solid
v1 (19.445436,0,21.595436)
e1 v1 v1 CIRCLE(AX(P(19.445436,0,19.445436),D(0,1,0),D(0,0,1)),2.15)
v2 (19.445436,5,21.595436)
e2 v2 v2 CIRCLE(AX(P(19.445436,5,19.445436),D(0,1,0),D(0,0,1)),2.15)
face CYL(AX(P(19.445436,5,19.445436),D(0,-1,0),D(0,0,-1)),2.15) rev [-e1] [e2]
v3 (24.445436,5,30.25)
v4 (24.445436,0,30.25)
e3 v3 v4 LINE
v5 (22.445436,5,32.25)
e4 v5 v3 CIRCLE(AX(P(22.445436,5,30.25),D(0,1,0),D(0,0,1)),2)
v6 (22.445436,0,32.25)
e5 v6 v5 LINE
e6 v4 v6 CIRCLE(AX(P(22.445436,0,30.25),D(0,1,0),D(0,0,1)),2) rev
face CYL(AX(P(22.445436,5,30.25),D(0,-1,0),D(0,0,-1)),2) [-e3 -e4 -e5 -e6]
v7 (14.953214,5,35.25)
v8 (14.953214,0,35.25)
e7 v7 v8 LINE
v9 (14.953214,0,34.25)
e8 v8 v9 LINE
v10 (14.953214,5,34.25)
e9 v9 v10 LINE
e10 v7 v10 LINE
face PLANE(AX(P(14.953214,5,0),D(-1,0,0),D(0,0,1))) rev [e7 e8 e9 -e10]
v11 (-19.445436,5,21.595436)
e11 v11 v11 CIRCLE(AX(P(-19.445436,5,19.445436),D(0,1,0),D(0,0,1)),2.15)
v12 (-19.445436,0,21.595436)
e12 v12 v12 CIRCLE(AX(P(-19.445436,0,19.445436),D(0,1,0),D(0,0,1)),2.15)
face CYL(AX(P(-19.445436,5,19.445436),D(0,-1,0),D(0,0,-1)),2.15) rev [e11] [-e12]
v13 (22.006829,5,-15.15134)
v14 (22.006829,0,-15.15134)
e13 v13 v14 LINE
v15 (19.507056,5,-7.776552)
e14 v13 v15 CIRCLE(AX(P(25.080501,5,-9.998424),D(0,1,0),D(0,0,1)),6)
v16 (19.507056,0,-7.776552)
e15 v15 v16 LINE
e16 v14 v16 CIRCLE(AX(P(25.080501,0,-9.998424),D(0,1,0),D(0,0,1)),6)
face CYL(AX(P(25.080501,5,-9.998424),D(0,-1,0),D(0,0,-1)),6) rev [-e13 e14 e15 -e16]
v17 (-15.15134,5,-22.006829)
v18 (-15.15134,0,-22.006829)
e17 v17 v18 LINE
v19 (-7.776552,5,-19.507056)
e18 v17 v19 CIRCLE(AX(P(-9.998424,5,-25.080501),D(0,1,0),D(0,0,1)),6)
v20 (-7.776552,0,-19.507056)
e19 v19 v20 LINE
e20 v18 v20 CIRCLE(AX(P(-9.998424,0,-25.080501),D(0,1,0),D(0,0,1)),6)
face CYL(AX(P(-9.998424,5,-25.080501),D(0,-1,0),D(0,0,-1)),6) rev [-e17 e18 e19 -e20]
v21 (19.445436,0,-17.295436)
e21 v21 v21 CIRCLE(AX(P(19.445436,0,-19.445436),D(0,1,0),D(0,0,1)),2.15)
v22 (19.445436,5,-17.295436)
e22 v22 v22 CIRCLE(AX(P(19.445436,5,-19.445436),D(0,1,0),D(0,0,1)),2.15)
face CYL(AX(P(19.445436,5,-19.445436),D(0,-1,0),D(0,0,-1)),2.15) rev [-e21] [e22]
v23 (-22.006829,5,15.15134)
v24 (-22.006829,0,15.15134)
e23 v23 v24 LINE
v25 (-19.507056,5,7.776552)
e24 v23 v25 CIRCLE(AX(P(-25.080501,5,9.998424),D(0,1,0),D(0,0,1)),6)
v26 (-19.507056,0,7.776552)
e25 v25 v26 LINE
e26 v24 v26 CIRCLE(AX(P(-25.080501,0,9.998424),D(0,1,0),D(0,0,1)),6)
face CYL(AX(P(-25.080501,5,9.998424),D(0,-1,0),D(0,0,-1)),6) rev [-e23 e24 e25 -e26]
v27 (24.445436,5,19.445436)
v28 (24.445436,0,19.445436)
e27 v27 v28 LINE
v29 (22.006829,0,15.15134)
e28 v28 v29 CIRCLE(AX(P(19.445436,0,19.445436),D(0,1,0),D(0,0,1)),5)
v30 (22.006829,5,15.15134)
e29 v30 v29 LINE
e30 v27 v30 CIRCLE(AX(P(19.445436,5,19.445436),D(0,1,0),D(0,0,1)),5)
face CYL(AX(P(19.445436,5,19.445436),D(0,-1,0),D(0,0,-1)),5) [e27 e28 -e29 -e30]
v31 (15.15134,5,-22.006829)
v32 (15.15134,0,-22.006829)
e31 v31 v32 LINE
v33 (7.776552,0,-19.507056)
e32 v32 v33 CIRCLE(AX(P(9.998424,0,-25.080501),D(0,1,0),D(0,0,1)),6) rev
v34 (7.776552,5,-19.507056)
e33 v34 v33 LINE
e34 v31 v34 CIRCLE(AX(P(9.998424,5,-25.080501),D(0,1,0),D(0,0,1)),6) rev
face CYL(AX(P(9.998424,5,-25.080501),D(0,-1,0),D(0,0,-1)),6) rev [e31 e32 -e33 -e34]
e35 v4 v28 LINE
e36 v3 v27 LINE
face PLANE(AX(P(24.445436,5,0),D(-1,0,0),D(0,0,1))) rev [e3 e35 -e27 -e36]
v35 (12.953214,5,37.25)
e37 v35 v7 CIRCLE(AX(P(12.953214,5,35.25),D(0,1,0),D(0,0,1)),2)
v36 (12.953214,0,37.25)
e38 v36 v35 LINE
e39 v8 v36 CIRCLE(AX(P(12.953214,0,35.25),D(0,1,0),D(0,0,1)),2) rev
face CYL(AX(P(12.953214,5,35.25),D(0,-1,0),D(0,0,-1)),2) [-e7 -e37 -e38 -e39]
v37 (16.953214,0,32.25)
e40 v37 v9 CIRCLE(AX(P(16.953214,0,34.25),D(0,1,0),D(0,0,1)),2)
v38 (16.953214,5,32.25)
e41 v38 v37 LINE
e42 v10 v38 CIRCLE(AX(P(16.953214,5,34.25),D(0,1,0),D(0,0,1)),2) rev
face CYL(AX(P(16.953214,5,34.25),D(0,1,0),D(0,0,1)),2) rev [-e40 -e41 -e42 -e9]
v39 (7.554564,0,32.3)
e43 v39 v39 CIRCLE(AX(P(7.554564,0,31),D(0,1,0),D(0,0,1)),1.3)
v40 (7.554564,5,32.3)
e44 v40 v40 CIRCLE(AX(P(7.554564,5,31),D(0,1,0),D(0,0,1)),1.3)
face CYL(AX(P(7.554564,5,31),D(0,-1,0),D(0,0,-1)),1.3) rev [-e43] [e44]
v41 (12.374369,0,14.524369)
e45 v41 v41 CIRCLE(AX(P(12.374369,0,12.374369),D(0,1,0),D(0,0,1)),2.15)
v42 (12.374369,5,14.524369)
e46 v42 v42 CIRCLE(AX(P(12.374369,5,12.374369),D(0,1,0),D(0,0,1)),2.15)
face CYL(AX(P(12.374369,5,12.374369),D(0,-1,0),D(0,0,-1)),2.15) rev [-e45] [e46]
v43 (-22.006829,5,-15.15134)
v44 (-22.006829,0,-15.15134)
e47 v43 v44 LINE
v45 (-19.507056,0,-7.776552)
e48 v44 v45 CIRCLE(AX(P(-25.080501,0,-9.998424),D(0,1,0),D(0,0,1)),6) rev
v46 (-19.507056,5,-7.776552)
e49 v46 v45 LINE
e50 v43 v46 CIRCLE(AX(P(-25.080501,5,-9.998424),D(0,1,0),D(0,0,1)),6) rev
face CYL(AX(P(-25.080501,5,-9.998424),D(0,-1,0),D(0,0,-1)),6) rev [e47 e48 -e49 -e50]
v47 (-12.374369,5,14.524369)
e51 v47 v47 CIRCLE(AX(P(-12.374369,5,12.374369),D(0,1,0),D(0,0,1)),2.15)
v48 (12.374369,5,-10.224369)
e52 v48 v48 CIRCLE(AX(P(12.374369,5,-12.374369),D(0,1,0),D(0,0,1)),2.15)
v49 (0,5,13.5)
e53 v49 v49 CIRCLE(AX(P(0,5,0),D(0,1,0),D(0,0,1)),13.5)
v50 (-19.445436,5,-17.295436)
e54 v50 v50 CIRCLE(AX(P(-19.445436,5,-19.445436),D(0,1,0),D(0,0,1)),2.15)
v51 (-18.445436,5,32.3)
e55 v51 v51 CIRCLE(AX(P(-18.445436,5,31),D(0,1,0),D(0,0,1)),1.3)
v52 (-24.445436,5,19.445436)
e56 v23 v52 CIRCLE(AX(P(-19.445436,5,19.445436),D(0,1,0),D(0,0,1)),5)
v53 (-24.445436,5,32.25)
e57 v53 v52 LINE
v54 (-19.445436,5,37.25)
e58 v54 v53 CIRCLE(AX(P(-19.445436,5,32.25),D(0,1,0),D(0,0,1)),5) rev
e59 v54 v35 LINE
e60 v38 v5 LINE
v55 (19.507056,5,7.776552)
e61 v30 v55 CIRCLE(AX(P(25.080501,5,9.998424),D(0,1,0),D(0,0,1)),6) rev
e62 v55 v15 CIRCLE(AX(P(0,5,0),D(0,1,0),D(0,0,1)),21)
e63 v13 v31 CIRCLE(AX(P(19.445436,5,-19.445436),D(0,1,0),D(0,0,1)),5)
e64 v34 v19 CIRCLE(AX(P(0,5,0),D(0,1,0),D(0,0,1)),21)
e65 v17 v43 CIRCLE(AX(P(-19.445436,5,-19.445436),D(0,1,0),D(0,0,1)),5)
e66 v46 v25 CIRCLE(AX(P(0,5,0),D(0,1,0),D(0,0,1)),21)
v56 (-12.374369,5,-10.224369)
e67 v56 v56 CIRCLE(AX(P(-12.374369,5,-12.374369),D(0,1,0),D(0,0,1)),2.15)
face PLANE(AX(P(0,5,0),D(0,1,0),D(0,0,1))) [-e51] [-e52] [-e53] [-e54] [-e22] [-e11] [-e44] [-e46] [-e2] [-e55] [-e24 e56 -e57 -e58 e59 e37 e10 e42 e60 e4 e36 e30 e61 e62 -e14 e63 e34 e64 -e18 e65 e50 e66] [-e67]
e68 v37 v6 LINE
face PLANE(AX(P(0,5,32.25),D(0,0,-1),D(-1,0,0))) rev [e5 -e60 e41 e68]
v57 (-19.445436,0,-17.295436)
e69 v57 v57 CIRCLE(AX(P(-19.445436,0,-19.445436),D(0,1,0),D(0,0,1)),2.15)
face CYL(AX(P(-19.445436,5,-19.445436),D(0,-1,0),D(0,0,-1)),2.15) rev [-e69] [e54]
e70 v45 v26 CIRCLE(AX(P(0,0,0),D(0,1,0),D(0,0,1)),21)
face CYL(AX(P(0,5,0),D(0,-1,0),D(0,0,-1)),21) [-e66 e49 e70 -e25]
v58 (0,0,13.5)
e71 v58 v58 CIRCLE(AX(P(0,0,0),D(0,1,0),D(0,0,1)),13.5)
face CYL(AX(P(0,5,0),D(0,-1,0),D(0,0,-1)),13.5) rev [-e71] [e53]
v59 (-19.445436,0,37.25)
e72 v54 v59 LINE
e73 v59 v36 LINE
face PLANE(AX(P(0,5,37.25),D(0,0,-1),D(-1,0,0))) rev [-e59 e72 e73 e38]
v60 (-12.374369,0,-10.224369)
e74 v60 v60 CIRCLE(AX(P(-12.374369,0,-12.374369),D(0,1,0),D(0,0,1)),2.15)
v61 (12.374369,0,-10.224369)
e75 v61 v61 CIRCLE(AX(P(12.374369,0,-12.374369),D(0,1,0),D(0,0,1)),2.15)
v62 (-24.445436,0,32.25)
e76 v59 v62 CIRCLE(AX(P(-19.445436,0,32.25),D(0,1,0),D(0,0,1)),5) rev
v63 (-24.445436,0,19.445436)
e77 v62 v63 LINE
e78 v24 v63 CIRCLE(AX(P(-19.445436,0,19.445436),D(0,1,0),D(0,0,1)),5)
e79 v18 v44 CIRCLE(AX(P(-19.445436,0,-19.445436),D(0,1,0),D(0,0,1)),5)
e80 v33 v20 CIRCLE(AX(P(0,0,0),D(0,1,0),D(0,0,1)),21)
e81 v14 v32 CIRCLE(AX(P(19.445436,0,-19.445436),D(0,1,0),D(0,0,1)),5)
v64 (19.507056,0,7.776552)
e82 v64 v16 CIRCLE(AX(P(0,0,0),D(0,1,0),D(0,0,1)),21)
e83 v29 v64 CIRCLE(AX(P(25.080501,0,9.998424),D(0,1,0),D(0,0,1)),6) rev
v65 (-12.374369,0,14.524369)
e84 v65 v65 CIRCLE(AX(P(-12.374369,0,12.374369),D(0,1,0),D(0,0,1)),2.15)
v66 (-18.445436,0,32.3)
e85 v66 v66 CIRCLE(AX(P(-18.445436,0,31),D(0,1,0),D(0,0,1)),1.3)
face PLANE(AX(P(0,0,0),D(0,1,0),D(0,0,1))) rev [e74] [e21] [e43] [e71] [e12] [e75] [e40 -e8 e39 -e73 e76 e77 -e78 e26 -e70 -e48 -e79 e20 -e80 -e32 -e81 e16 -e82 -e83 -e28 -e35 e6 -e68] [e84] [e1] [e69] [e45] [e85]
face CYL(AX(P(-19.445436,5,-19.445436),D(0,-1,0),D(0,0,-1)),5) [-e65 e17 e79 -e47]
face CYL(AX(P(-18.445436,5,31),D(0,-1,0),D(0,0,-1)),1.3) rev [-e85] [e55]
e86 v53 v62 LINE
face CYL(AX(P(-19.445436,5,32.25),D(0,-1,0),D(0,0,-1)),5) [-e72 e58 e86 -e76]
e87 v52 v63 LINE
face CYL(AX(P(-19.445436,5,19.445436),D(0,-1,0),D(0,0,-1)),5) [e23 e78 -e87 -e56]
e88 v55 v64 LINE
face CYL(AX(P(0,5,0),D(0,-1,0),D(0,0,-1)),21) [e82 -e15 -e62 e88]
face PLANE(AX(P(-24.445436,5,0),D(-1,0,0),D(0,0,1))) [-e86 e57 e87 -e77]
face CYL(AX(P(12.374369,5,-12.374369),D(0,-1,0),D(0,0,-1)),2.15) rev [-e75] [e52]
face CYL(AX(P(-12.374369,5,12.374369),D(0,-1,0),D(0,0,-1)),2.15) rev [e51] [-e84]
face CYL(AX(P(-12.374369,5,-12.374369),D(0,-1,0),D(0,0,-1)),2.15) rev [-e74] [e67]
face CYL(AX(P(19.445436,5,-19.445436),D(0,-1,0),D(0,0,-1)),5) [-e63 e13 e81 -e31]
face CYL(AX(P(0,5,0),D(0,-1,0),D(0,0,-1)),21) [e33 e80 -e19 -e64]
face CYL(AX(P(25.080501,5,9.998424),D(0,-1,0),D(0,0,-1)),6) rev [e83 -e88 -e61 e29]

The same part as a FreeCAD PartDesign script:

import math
import FreeCAD as App
import Part
import Sketcher

V = App.Vector


def edges_at(feature, points):
    """Names of the edges that pass closest to the given points."""
    edges = feature.Shape.Edges
    near = lambda p: min(range(len(edges)), key=lambda i: edges[i].distToShape(Part.Vertex(*p))[0])
    return sorted({f"Edge{near(p) + 1}" for p in points})

doc = App.newDocument("Part")
params = doc.addObject("Spreadsheet::Sheet", "Params")
for row, (alias, value) in enumerate([
    ("sketch1_diameter", "27 mm"),
    ("sketch1_radius", "5 mm"),
    ("sketch1_radius2", "6 mm"),
    ("sketch1_radius3", "21 mm"),
    ("sketch1_diameter2", "4.3 mm"),
    ("pad1_length", "5 mm"),
    ("fillet_radius", "2 mm"),
], start=1):
    params.set(f"A{row}", alias)
    params.set(f"B{row}", "=" + value)
    params.setAlias(f"B{row}", alias)

body = doc.addObject("PartDesign::Body", "Body")

# Sketch on XZ plane
sketch1 = body.newObject("Sketcher::SketchObject", "Sketch")
sketch1.AttachmentSupport = (doc.getObject("XZ_Plane"), [""])
sketch1.MapMode = "FlatFace"
sketch1.addGeometry([
    Part.LineSegment(V(-24.4, 19.4, 0), V(-24.4, 32.2, 0)),  # 0
    Part.ArcOfCircle(Part.Circle(V(-19.4, 32.2, 0), V(0, 0, 1), 5), math.radians(90), math.radians(180)),  # 1
    Part.LineSegment(V(-19.4, 37.2, 0), V(15, 37.2, 0)),  # 2
    Part.LineSegment(V(15, 37.2, 0), V(15, 32.2, 0)),  # 3
    Part.LineSegment(V(15, 32.2, 0), V(24.4, 32.2, 0)),  # 4
    Part.LineSegment(V(24.4, 32.2, 0), V(24.4, 19.4, 0)),  # 5
    Part.ArcOfCircle(Part.Circle(V(19.4, 19.4, 0), V(0, 0, 1), 5), math.radians(-59), math.radians(0)),  # 6
    Part.ArcOfCircle(Part.Circle(V(25.1, 10, 0), V(0, 0, 1), 6), math.radians(121), math.radians(202)),  # 7
    Part.ArcOfCircle(Part.Circle(V(0, 0, 0), V(0, 0, 1), 21), math.radians(-22), math.radians(22)),  # 8
    Part.ArcOfCircle(Part.Circle(V(25.1, -10, 0), V(0, 0, 1), 6), math.radians(158), math.radians(239)),  # 9
    Part.ArcOfCircle(Part.Circle(V(19.4, -19.4, 0), V(0, 0, 1), 5), math.radians(-149), math.radians(59)),  # 10
    Part.ArcOfCircle(Part.Circle(V(10, -25.1, 0), V(0, 0, 1), 6), math.radians(31), math.radians(112)),  # 11
    Part.ArcOfCircle(Part.Circle(V(0, 0, 0), V(0, 0, 1), 21), math.radians(-112), math.radians(-68)),  # 12
    Part.ArcOfCircle(Part.Circle(V(-10, -25.1, 0), V(0, 0, 1), 6), math.radians(68), math.radians(149)),  # 13
    Part.ArcOfCircle(Part.Circle(V(-19.4, -19.4, 0), V(0, 0, 1), 5), math.radians(121), math.radians(329)),  # 14
    Part.ArcOfCircle(Part.Circle(V(-25.1, -10, 0), V(0, 0, 1), 6), math.radians(-59), math.radians(22)),  # 15
    Part.ArcOfCircle(Part.Circle(V(0, 0, 0), V(0, 0, 1), 21), math.radians(158), math.radians(202)),  # 16
    Part.ArcOfCircle(Part.Circle(V(-25.1, 10, 0), V(0, 0, 1), 6), math.radians(-22), math.radians(59)),  # 17
    Part.ArcOfCircle(Part.Circle(V(-19.4, 19.4, 0), V(0, 0, 1), 5), math.radians(-180), math.radians(-121)),  # 18
    Part.Circle(V(19.4, 19.4, 0), V(0, 0, 1), 2.1),  # 19
    Part.Circle(V(7.6, 31, 0), V(0, 0, 1), 1.3),  # 20
    Part.Circle(V(12.4, 12.4, 0), V(0, 0, 1), 2.1),  # 21
    Part.Circle(V(-18.4, 31, 0), V(0, 0, 1), 1.3),  # 22
    Part.Circle(V(-19.4, 19.4, 0), V(0, 0, 1), 2.1),  # 23
    Part.Circle(V(-12.4, 12.4, 0), V(0, 0, 1), 2.1),  # 24
    Part.Circle(V(12.4, -12.4, 0), V(0, 0, 1), 2.1),  # 25
    Part.Circle(V(19.4, -19.4, 0), V(0, 0, 1), 2.1),  # 26
    Part.Circle(V(0, 0, 0), V(0, 0, 1), 13.5),  # 27
    Part.Circle(V(-12.4, -12.4, 0), V(0, 0, 1), 2.1),  # 28
    Part.Circle(V(-19.4, -19.4, 0), V(0, 0, 1), 2.1),  # 29
], False)
sketch1.addConstraint([
    Sketcher.Constraint("Tangent", 0, 2, 1, 2),
    Sketcher.Constraint("Tangent", 1, 1, 2, 1),
    Sketcher.Constraint("Coincident", 2, 2, 3, 1),
    Sketcher.Constraint("Coincident", 3, 2, 4, 1),
    Sketcher.Constraint("Coincident", 4, 2, 5, 1),
    Sketcher.Constraint("Tangent", 5, 2, 6, 2),
    Sketcher.Constraint("Tangent", 6, 1, 7, 1),
    Sketcher.Constraint("Tangent", 7, 2, 8, 2),
    Sketcher.Constraint("Tangent", 8, 1, 9, 1),
    Sketcher.Constraint("Tangent", 9, 2, 10, 2),
    Sketcher.Constraint("Tangent", 10, 1, 11, 1),
    Sketcher.Constraint("Tangent", 11, 2, 12, 2),
    Sketcher.Constraint("Tangent", 12, 1, 13, 1),
    Sketcher.Constraint("Tangent", 13, 2, 14, 2),
    Sketcher.Constraint("Tangent", 14, 1, 15, 1),
    Sketcher.Constraint("Tangent", 15, 2, 16, 2),
    Sketcher.Constraint("Tangent", 16, 1, 17, 1),
    Sketcher.Constraint("Tangent", 17, 2, 18, 2),
    Sketcher.Constraint("Tangent", 18, 1, 0, 1),
    Sketcher.Constraint("Vertical", 0),
    Sketcher.Constraint("Horizontal", 2),
    Sketcher.Constraint("Vertical", 3),
    Sketcher.Constraint("Horizontal", 4),
    Sketcher.Constraint("Vertical", 5),
    Sketcher.Constraint("Coincident", 8, 3, -1, 1),
    Sketcher.Constraint("Coincident", 12, 3, -1, 1),
    Sketcher.Constraint("Coincident", 16, 3, -1, 1),
    Sketcher.Constraint("Coincident", 27, 3, -1, 1),
    Sketcher.Constraint("Coincident", 19, 3, 6, 3),
    Sketcher.Constraint("Coincident", 23, 3, 18, 3),
    Sketcher.Constraint("Coincident", 26, 3, 10, 3),
    Sketcher.Constraint("Coincident", 29, 3, 14, 3),
    Sketcher.Constraint("Equal", 1, 6),
    Sketcher.Constraint("Equal", 7, 9),
    Sketcher.Constraint("Equal", 6, 10),
    Sketcher.Constraint("Equal", 9, 11),
    Sketcher.Constraint("Equal", 8, 12),
    Sketcher.Constraint("Equal", 11, 13),
    Sketcher.Constraint("Equal", 10, 14),
    Sketcher.Constraint("Equal", 13, 15),
    Sketcher.Constraint("Equal", 12, 16),
    Sketcher.Constraint("Equal", 15, 17),
    Sketcher.Constraint("Equal", 14, 18),
    Sketcher.Constraint("Equal", 19, 21),
    Sketcher.Constraint("Equal", 20, 22),
    Sketcher.Constraint("Equal", 21, 23),
    Sketcher.Constraint("Equal", 23, 24),
    Sketcher.Constraint("Equal", 24, 25),
    Sketcher.Constraint("Equal", 25, 26),
    Sketcher.Constraint("Equal", 26, 28),
    Sketcher.Constraint("Equal", 28, 29),
    Sketcher.Constraint("Symmetric", 6, 3, 14, 3, -1, 1),
    Sketcher.Constraint("Symmetric", 10, 3, 18, 3, -1, 1),
    Sketcher.Constraint("Symmetric", 24, 3, 25, 3, -1, 1),
    Sketcher.Constraint("Symmetric", 21, 3, 28, 3, -1, 1),
    Sketcher.Constraint("Symmetric", 10, 3, 14, 3, -2),
    Sketcher.Constraint("Symmetric", 21, 3, 24, 3, -2),
    Sketcher.Constraint("Horizontal", 20, 3, 22, 3),
    Sketcher.Constraint("Horizontal", 0, 2, 3, 2),
    Sketcher.Constraint("Diameter", 27, 27.0),
    Sketcher.Constraint("Radius", 1, 5.0),
    Sketcher.Constraint("Radius", 7, 6.0),
    Sketcher.Constraint("Radius", 8, 21.0),
    Sketcher.Constraint("Diameter", 19, 4.3),
    Sketcher.Constraint("Diameter", 20, 2.6),
    Sketcher.Constraint("DistanceY", -1, 1, 20, 3, 31.0),
    Sketcher.Constraint("DistanceX", 1, 3, 20, 3, 27.0),
    Sketcher.Constraint("DistanceX", 1, 3, 22, 3, 1.0),
    Sketcher.Constraint("DistanceY", -1, 1, 1, 3, 32.25),
    Sketcher.Constraint("DistanceX", 2, 1, 2, 2, 34.398651),
    Sketcher.Constraint("DistanceX", -1, 1, 7, 3, 25.080501),
    Sketcher.Constraint("DistanceY", 11, 3, -1, 1, 25.080501),
    Sketcher.Constraint("DistanceX", -1, 1, 21, 3, 12.374369),
    Sketcher.Constraint("DistanceY", -1, 1, 21, 3, 12.374369),
])
sketch1.setExpression("Constraints[59]", "Params.sketch1_diameter")
sketch1.setExpression("Constraints[60]", "Params.sketch1_radius")
sketch1.setExpression("Constraints[61]", "Params.sketch1_radius2")
sketch1.setExpression("Constraints[62]", "Params.sketch1_radius3")
sketch1.setExpression("Constraints[63]", "Params.sketch1_diameter2")
pad1 = body.newObject("PartDesign::Pad", "Pad")
pad1.Profile = sketch1
pad1.setExpression("Length", "Params.pad1_length")
pad1.Reversed = True
doc.recompute()

fillet = body.newObject("PartDesign::Fillet", "Fillet")
fillet.Base = (pad1, edges_at(pad1, [(24.445, 2.5, 32.25), (14.953, 2.5, 32.25), (14.953, 2.5, 37.25)]))
fillet.setExpression("Radius", "Params.fillet_radius")

doc.recompute()
